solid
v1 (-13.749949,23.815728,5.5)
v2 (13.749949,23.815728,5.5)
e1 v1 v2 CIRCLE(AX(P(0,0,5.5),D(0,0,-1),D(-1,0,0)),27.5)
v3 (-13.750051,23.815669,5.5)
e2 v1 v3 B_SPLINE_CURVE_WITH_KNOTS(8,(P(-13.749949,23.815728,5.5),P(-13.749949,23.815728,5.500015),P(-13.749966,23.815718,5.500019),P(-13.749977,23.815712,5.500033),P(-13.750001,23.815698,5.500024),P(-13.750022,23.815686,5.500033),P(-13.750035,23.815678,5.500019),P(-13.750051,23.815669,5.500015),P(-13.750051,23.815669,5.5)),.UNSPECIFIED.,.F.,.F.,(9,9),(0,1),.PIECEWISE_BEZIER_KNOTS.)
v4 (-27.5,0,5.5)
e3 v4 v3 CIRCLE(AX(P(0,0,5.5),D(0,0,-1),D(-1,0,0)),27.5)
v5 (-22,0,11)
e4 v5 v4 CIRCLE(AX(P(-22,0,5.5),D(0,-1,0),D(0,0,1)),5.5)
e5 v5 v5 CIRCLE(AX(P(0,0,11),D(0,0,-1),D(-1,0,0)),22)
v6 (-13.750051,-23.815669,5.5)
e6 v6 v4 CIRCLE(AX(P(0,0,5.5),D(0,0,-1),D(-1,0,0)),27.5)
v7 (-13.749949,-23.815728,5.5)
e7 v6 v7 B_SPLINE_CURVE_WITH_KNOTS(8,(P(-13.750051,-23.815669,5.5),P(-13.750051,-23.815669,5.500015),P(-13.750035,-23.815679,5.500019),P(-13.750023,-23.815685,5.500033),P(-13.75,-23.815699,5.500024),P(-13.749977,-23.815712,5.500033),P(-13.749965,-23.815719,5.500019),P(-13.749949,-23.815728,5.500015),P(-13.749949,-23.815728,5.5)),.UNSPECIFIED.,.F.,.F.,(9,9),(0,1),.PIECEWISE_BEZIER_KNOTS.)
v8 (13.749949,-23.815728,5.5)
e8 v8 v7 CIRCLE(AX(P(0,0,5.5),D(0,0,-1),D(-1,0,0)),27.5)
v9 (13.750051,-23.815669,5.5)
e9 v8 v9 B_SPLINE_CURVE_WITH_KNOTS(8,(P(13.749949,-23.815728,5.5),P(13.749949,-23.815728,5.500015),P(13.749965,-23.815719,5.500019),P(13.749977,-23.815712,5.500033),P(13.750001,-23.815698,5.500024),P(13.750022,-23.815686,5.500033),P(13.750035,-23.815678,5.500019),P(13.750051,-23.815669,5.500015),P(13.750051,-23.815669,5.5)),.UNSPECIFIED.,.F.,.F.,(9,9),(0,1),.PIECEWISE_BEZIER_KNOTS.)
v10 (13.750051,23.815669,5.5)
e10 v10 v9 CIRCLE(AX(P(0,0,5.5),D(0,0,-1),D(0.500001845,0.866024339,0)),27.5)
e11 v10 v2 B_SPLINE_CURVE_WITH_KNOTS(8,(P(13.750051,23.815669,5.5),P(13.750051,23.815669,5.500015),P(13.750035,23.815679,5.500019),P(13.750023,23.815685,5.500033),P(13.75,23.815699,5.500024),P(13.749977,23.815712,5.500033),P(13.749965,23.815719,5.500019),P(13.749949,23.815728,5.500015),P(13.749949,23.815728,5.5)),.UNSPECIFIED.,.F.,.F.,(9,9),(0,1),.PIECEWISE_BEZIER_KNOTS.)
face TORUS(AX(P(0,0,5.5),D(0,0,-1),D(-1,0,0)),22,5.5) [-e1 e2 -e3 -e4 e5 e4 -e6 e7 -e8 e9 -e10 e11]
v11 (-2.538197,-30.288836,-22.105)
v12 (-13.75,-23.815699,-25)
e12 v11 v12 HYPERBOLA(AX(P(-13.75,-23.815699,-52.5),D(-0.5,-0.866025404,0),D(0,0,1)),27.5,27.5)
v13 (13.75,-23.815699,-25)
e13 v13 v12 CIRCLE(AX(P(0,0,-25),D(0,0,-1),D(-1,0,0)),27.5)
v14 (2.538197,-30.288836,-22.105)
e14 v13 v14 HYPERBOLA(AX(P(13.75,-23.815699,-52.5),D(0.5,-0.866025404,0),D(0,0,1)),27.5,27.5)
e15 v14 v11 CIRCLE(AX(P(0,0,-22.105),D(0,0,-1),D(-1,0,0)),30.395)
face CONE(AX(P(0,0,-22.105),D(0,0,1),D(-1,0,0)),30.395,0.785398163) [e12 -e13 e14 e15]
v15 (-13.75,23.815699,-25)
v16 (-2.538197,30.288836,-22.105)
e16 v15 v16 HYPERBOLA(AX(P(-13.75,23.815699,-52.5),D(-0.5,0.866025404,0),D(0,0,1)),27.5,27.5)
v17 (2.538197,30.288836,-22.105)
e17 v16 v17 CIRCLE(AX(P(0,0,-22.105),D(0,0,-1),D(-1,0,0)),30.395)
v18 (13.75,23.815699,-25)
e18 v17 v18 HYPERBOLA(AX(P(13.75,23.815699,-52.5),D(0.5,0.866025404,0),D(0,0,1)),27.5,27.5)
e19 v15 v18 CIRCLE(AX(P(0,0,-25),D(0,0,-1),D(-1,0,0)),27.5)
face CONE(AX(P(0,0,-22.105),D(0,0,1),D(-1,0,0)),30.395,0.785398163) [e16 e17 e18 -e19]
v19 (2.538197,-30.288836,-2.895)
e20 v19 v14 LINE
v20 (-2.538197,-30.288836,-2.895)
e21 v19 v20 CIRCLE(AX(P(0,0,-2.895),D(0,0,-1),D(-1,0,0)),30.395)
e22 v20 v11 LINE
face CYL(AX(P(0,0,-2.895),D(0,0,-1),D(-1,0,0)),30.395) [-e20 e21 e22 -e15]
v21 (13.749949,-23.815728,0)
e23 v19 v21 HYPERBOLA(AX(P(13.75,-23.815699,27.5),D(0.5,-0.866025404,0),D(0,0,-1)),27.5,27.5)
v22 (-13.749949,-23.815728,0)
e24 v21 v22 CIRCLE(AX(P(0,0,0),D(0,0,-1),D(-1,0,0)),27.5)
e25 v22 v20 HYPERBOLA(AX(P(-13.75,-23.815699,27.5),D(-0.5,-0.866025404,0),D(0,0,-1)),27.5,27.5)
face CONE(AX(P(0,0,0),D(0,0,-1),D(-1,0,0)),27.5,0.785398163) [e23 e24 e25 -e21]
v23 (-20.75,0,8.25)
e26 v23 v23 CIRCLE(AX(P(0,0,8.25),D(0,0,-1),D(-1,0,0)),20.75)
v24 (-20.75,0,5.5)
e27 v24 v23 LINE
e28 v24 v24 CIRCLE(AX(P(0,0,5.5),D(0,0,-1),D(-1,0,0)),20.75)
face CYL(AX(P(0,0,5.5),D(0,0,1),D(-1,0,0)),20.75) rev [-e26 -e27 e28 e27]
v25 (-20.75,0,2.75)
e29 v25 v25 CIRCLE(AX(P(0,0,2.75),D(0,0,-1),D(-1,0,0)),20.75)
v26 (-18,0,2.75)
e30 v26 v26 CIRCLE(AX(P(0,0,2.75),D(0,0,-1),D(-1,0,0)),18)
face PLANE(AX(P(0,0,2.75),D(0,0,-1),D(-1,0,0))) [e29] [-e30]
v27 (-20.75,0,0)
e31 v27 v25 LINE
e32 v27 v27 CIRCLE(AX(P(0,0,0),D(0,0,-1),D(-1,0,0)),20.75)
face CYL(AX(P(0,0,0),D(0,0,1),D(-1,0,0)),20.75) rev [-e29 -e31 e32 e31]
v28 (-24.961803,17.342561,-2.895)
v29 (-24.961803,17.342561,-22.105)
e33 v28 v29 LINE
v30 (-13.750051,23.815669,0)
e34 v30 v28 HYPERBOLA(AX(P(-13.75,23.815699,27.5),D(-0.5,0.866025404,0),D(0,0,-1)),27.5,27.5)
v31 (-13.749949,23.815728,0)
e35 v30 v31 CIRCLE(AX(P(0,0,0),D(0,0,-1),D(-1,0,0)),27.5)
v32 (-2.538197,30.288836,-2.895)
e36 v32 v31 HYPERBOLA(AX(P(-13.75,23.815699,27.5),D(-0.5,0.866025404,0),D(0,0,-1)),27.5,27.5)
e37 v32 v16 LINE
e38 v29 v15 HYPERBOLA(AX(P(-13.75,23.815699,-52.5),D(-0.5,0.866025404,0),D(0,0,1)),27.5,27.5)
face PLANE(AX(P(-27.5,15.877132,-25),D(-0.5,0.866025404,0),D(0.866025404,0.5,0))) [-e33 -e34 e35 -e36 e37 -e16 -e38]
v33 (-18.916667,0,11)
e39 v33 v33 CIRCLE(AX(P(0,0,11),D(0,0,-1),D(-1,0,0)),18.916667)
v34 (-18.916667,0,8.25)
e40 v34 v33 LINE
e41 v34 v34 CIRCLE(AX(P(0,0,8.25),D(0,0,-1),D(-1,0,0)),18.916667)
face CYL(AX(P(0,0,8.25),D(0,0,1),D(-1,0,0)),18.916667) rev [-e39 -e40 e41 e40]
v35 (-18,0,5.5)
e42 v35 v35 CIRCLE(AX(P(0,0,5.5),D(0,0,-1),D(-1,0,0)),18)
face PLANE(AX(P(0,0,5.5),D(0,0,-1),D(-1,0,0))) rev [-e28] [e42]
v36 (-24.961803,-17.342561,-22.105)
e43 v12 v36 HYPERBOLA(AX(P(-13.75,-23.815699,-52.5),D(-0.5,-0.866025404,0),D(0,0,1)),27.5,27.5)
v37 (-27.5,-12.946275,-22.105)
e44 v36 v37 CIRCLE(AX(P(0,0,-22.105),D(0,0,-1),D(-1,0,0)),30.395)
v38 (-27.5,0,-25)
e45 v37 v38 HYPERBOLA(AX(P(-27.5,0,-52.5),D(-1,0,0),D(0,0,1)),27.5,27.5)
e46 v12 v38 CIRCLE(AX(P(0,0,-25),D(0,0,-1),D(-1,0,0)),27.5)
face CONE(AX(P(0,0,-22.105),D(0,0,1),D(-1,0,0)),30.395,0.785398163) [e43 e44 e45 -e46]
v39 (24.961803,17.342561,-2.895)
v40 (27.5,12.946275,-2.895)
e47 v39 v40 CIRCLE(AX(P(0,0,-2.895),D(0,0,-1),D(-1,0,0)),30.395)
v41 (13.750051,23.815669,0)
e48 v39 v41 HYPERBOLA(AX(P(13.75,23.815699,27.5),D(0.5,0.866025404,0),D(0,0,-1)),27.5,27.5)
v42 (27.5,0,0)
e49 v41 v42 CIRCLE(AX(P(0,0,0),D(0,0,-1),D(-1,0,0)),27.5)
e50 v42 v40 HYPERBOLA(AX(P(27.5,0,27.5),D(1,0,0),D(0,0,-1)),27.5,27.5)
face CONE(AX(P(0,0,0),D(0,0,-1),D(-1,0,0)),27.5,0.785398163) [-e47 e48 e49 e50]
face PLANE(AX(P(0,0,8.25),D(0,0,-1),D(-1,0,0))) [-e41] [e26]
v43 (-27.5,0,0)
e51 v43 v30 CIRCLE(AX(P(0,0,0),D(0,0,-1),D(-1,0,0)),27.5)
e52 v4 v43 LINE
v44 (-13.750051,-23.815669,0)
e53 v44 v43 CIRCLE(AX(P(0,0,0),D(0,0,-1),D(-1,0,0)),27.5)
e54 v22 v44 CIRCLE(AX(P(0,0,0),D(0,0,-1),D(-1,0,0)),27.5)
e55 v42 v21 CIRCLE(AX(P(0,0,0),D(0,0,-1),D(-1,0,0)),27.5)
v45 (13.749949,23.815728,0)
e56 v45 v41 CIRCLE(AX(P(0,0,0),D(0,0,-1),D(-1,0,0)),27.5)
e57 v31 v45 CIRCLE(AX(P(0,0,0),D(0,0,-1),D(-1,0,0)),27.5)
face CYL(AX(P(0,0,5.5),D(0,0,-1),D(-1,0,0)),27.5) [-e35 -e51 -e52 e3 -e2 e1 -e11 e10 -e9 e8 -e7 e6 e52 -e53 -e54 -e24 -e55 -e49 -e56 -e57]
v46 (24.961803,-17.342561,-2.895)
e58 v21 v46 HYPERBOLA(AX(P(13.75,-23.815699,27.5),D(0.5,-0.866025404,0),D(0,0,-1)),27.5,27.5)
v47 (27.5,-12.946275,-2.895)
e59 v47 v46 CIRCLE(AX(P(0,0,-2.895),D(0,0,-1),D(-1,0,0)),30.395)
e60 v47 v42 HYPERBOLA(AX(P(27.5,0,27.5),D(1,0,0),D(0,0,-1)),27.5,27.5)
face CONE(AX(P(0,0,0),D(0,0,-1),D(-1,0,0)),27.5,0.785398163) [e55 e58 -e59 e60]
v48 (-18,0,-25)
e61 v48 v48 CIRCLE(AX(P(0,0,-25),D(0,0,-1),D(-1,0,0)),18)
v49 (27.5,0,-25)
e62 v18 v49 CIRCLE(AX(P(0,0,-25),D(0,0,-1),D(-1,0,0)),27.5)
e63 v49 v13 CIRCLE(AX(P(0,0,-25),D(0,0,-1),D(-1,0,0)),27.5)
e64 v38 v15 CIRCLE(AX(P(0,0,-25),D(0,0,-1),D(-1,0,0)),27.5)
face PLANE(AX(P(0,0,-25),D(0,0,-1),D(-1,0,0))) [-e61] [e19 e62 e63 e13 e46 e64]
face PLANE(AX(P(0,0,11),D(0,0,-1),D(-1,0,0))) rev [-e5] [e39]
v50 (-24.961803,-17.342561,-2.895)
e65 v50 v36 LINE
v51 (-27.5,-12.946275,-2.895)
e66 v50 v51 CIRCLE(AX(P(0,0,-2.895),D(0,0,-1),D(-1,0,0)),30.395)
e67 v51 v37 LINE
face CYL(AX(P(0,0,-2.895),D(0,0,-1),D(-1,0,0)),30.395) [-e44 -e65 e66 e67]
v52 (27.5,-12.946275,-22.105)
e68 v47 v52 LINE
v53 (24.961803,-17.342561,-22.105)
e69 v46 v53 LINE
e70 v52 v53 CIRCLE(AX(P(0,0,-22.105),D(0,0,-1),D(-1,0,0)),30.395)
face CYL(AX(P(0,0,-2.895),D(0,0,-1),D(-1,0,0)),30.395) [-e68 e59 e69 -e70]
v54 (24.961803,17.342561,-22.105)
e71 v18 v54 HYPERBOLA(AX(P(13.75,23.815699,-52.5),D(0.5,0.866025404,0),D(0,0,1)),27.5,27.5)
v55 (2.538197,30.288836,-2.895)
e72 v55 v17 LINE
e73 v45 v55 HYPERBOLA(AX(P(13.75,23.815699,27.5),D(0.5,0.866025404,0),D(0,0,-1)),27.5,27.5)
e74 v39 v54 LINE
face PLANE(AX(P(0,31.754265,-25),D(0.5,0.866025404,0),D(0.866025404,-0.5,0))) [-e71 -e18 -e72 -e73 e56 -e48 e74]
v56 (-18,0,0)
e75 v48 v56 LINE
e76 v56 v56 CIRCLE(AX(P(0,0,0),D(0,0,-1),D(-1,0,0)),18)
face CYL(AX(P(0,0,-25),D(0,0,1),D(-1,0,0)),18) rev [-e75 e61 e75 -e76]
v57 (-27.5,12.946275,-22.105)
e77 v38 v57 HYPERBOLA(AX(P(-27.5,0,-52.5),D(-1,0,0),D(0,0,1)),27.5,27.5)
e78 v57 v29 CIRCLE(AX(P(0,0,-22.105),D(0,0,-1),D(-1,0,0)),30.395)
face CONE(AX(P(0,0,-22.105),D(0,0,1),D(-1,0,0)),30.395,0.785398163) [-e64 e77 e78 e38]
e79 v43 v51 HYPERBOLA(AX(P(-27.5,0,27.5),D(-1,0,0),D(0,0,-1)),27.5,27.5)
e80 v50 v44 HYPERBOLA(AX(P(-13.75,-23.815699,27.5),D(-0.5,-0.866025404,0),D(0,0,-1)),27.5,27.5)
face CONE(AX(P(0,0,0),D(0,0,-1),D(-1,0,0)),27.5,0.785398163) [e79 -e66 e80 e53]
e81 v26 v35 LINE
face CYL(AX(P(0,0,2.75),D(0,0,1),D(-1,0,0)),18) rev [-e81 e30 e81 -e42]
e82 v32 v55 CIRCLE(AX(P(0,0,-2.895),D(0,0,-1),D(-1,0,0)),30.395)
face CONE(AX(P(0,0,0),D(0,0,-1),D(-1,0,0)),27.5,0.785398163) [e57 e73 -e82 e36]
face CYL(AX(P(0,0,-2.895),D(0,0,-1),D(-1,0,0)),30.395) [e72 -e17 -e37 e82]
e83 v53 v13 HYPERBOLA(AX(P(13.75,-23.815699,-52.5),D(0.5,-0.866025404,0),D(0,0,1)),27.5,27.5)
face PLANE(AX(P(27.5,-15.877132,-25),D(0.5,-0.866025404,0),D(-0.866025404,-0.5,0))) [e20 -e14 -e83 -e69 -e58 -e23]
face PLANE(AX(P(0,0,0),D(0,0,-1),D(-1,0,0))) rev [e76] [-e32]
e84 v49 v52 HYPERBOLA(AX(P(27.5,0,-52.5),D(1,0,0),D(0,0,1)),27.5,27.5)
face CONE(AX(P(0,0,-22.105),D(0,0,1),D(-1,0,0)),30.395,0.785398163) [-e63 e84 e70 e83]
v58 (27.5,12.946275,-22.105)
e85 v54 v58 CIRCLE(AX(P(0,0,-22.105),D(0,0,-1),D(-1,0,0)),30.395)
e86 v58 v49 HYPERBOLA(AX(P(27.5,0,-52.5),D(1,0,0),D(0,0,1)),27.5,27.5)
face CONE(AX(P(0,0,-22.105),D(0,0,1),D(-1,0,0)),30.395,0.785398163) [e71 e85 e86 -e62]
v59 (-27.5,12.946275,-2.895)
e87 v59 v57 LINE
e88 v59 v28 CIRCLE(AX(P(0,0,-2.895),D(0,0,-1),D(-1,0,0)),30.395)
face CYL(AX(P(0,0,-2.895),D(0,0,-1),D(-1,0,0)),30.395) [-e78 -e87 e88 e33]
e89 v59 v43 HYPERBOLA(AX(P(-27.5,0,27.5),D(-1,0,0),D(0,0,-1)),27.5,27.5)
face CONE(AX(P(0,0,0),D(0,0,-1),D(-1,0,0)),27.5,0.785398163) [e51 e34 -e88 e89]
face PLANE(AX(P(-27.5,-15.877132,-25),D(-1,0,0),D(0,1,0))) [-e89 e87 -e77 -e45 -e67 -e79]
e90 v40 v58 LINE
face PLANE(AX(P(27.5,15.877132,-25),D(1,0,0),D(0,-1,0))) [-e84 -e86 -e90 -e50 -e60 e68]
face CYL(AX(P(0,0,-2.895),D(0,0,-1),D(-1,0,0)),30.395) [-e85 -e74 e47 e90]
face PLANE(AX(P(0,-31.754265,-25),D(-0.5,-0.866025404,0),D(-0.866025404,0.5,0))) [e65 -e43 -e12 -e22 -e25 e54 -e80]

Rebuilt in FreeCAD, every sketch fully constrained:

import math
import FreeCAD as App
import Part
import Sketcher
Q = App.Units.Quantity


def add_polygon(sketch, points):
    """Adds a closed chain of lines whose ends are joined by coincident constraints."""
    first, n = sketch.GeometryCount, len(points)
    for a, b in zip(points, points[1:] + points[:1]):
        sketch.addGeometry(Part.LineSegment(App.Vector(*a, 0), App.Vector(*b, 0)), False)
    for i in range(n):
        sketch.addConstraint(Sketcher.Constraint("Coincident", first + i, 2, first + (i + 1) % n, 1))

doc = App.newDocument("Part")
body = doc.addObject("PartDesign::Body", "Body")

sketch1 = body.newObject("Sketcher::SketchObject", "Sketch")
sketch1.AttachmentSupport = (doc.getObject("XZ_Plane"), [""])
sketch1.MapMode = "FlatFace"
sketch1.addGeometry(Part.LineSegment(App.Vector(-18, 0, 0), App.Vector(-18, -25, 0)), False)
sketch1.addGeometry(Part.LineSegment(App.Vector(-18, -25, 0), App.Vector(-27.5, -25, 0)), False)
sketch1.addGeometry(Part.LineSegment(App.Vector(-27.5, -25, 0), App.Vector(-30.4, -22.1, 0)), False)
sketch1.addGeometry(Part.LineSegment(App.Vector(-30.4, -22.1, 0), App.Vector(-30.4, -2.9, 0)), False)
sketch1.addGeometry(Part.LineSegment(App.Vector(-30.4, -2.9, 0), App.Vector(-27.5, 0, 0)), False)
sketch1.addGeometry(Part.LineSegment(App.Vector(-27.5, 0, 0), App.Vector(-27.5, 5.5, 0)), False)
sketch1.addGeometry(Part.ArcOfCircle(Part.Circle(App.Vector(-22, 5.5, 0), App.Vector(0, 0, 1), 5.5), math.radians(90), math.radians(180)), False)
sketch1.addGeometry(Part.LineSegment(App.Vector(-22, 11, 0), App.Vector(-18.9, 11, 0)), False)
sketch1.addGeometry(Part.LineSegment(App.Vector(-18.9, 11, 0), App.Vector(-18.9, 8.2, 0)), False)
sketch1.addGeometry(Part.LineSegment(App.Vector(-18.9, 8.2, 0), App.Vector(-20.8, 8.2, 0)), False)
sketch1.addGeometry(Part.LineSegment(App.Vector(-20.8, 8.2, 0), App.Vector(-20.8, 5.5, 0)), False)
sketch1.addGeometry(Part.LineSegment(App.Vector(-20.8, 5.5, 0), App.Vector(-18, 5.5, 0)), False)
sketch1.addGeometry(Part.LineSegment(App.Vector(-18, 5.5, 0), App.Vector(-18, 2.8, 0)), False)
sketch1.addGeometry(Part.LineSegment(App.Vector(-18, 2.8, 0), App.Vector(-20.8, 2.8, 0)), False)
sketch1.addGeometry(Part.LineSegment(App.Vector(-20.8, 2.8, 0), App.Vector(-20.8, 0, 0)), False)
sketch1.addGeometry(Part.LineSegment(App.Vector(-20.8, 0, 0), App.Vector(-18, 0, 0)), False)
sketch1.addConstraint(Sketcher.Constraint("Coincident", 0, 2, 1, 1))
sketch1.addConstraint(Sketcher.Constraint("Coincident", 1, 2, 2, 1))
sketch1.addConstraint(Sketcher.Constraint("Coincident", 2, 2, 3, 1))
sketch1.addConstraint(Sketcher.Constraint("Coincident", 3, 2, 4, 1))
sketch1.addConstraint(Sketcher.Constraint("Coincident", 4, 2, 5, 1))
sketch1.addConstraint(Sketcher.Constraint("Tangent", 5, 2, 6, 2))
sketch1.addConstraint(Sketcher.Constraint("Tangent", 6, 1, 7, 1))
sketch1.addConstraint(Sketcher.Constraint("Coincident", 7, 2, 8, 1))
sketch1.addConstraint(Sketcher.Constraint("Coincident", 8, 2, 9, 1))
sketch1.addConstraint(Sketcher.Constraint("Coincident", 9, 2, 10, 1))
sketch1.addConstraint(Sketcher.Constraint("Coincident", 10, 2, 11, 1))
sketch1.addConstraint(Sketcher.Constraint("Coincident", 11, 2, 12, 1))
sketch1.addConstraint(Sketcher.Constraint("Coincident", 12, 2, 13, 1))
sketch1.addConstraint(Sketcher.Constraint("Coincident", 13, 2, 14, 1))
sketch1.addConstraint(Sketcher.Constraint("Coincident", 14, 2, 15, 1))
sketch1.addConstraint(Sketcher.Constraint("Coincident", 15, 2, 0, 1))
sketch1.addConstraint(Sketcher.Constraint("Vertical", 0))
sketch1.addConstraint(Sketcher.Constraint("Horizontal", 1))
sketch1.addConstraint(Sketcher.Constraint("Vertical", 3))
sketch1.addConstraint(Sketcher.Constraint("Vertical", 5))
sketch1.addConstraint(Sketcher.Constraint("Horizontal", 7))
sketch1.addConstraint(Sketcher.Constraint("Vertical", 8))
sketch1.addConstraint(Sketcher.Constraint("Horizontal", 9))
sketch1.addConstraint(Sketcher.Constraint("Vertical", 10))
sketch1.addConstraint(Sketcher.Constraint("Horizontal", 11))
sketch1.addConstraint(Sketcher.Constraint("Vertical", 12))
sketch1.addConstraint(Sketcher.Constraint("Horizontal", 13))
sketch1.addConstraint(Sketcher.Constraint("Vertical", 14))
sketch1.addConstraint(Sketcher.Constraint("Horizontal", 15))
sketch1.addConstraint(Sketcher.Constraint("PointOnObject", 4, 2, -1))
sketch1.addConstraint(Sketcher.Constraint("PointOnObject", 14, 2, -1))
sketch1.addConstraint(Sketcher.Constraint("Perpendicular", 2, 4))
sketch1.addConstraint(Sketcher.Constraint("Horizontal", 5, 2, 10, 2))
sketch1.addConstraint(Sketcher.Constraint("Vertical", 1, 2, 4, 2))
sketch1.addConstraint(Sketcher.Constraint("Vertical", 0, 2, 11, 2))
sketch1.addConstraint(Sketcher.Constraint("Vertical", 10, 2, 13, 2))
sketch1.addConstraint(Sketcher.Constraint("Equal", 15, 8))
sketch1.addConstraint(Sketcher.Constraint("Equal", 8, 10))
sketch1.addConstraint(Sketcher.Constraint("Equal", 10, 12))
sketch1.addConstraint(Sketcher.Constraint("Equal", 12, 14))
sketch1.addConstraint(Sketcher.Constraint("Equal", 2, 4))
sketch1.addConstraint(Sketcher.Constraint("Radius", 6, 5.5))
sketch1.addConstraint(Sketcher.Constraint("DistanceY", 0, 2, 0, 1, 25.0))
sketch1.addConstraint(Sketcher.Constraint("DistanceX", 1, 2, 1, 1, 9.5))
sketch1.addConstraint(Sketcher.Constraint("DistanceX", 6, 3, -1, 1, 22.0))
sketch1.addConstraint(Sketcher.Constraint("DistanceY", 3, 1, 3, 2, 19.21))
sketch1.addConstraint(Sketcher.Constraint("DistanceX", 7, 1, 7, 2, 3.083333))
revolution = body.newObject("PartDesign::Revolution", "Revolution")
revolution.Profile = sketch1
revolution.ReferenceAxis = (sketch1, ["V_Axis"])
revolution.Angle = 360
body2 = doc.addObject("PartDesign::Body", "Body001")

sketch2 = body2.newObject("Sketcher::SketchObject", "Sketch001")
sketch2.AttachmentSupport = (doc.getObject("XY_Plane001"), [""])
sketch2.MapMode = "FlatFace"
sketch2.AttachmentOffset = App.Placement(App.Vector(0, 0, -25), App.Rotation())
add_polygon(sketch2, [(0, -32), (-28, -16), (-28, 16), (0, 32), (28, 16), (28, -16)])
sketch2.addConstraint(Sketcher.Constraint("Vertical", 1))
sketch2.addConstraint(Sketcher.Constraint("Vertical", 4))
sketch2.addConstraint(Sketcher.Constraint("Symmetric", 0, 2, 3, 2, -1, 1))
sketch2.addConstraint(Sketcher.Constraint("Symmetric", 2, 2, 5, 2, -1, 1))
sketch2.addConstraint(Sketcher.Constraint("PointOnObject", 2, 2, -2))
sketch2.addConstraint(Sketcher.Constraint("Parallel", 2, 5))
sketch2.addConstraint(Sketcher.Constraint("Horizontal", 1, 2, 3, 2))
sketch2.addConstraint(Sketcher.Constraint("Angle", 0, Q("150 deg")))
sketch2.addConstraint(Sketcher.Constraint("DistanceX", 1, 2, 3, 2, 55.0))
sketch2.addConstraint(Sketcher.Constraint("DistanceY", 1, 1, 1, 2, 31.754265))
pad1 = body2.newObject("PartDesign::Pad", "Pad")
pad1.Profile = sketch2
pad1.Length = 36
doc.recompute()

boolean = body.newObject("PartDesign::Boolean", "Boolean")
boolean.Type = "Common"
boolean.addObjects([body2])

doc.recompute()
